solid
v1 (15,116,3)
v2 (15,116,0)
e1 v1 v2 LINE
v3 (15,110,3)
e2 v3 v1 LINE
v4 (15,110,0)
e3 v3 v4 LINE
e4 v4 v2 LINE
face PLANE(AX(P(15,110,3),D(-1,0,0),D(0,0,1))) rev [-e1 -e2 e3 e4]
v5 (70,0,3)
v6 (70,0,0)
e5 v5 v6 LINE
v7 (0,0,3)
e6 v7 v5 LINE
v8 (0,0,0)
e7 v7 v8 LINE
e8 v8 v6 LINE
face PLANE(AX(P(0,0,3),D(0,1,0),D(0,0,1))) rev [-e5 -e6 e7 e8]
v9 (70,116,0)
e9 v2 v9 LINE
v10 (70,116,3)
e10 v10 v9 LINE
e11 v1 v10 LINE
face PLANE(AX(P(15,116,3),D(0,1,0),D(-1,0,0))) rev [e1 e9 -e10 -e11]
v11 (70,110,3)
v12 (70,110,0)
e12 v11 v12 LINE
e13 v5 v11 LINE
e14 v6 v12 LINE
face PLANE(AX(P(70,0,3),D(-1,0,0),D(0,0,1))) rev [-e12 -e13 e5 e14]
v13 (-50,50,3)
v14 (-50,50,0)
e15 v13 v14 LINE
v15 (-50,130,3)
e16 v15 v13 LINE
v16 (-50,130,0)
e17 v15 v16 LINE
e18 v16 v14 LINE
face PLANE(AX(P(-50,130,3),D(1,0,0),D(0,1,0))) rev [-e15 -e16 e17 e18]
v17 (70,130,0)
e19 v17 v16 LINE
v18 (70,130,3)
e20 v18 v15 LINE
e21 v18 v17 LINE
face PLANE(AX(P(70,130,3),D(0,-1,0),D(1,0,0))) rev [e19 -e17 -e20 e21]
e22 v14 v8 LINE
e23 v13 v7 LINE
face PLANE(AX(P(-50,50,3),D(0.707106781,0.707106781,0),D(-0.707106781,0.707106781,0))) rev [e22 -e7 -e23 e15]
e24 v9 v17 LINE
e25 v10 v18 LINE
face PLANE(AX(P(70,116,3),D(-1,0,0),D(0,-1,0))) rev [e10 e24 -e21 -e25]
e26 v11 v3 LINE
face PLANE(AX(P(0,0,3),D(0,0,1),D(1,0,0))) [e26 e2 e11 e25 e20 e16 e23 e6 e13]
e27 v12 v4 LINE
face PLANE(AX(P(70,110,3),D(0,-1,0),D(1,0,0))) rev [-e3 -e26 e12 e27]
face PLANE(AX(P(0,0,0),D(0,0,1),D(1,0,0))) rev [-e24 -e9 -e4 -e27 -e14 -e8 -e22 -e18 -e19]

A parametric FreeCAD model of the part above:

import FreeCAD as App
import Part
import Sketcher

V = App.Vector

doc = App.newDocument("Part")
params = doc.addObject("Spreadsheet::Sheet", "Params")
for row, (alias, value) in enumerate([
    ("sketch1_width", "70 mm"),
    ("sketch1_width2", "55 mm"),
    ("sketch1_width3", "120 mm"),
    ("sketch1_height", "110 mm"),
    ("sketch1_height2", "6 mm"),
    ("pad1_length", "3 mm"),
], start=1):
    params.set(f"A{row}", alias)
    params.set(f"B{row}", "=" + value)
    params.setAlias(f"B{row}", alias)

body = doc.addObject("PartDesign::Body", "Body")

# Sketch on XY plane
sketch1 = body.newObject("Sketcher::SketchObject", "Sketch")
sketch1.AttachmentSupport = (doc.getObject("XY_Plane"), [""])
sketch1.MapMode = "FlatFace"
sketch1.addGeometry(Part.LineSegment(V(0, 0, 0), V(70, 0, 0)), False)
sketch1.addGeometry(Part.LineSegment(V(70, 0, 0), V(70, 110, 0)), False)
sketch1.addGeometry(Part.LineSegment(V(70, 110, 0), V(15, 110, 0)), False)
sketch1.addGeometry(Part.LineSegment(V(15, 110, 0), V(15, 116, 0)), False)
sketch1.addGeometry(Part.LineSegment(V(15, 116, 0), V(70, 116, 0)), False)
sketch1.addGeometry(Part.LineSegment(V(70, 116, 0), V(70, 130, 0)), False)
sketch1.addGeometry(Part.LineSegment(V(70, 130, 0), V(-50, 130, 0)), False)
sketch1.addGeometry(Part.LineSegment(V(-50, 130, 0), V(-50, 50, 0)), False)
sketch1.addGeometry(Part.LineSegment(V(-50, 50, 0), V(0, 0, 0)), False)
sketch1.addConstraint(Sketcher.Constraint("Coincident", 0, 2, 1, 1))
sketch1.addConstraint(Sketcher.Constraint("Coincident", 1, 2, 2, 1))
sketch1.addConstraint(Sketcher.Constraint("Coincident", 2, 2, 3, 1))
sketch1.addConstraint(Sketcher.Constraint("Coincident", 3, 2, 4, 1))
sketch1.addConstraint(Sketcher.Constraint("Coincident", 4, 2, 5, 1))
sketch1.addConstraint(Sketcher.Constraint("Coincident", 5, 2, 6, 1))
sketch1.addConstraint(Sketcher.Constraint("Coincident", 6, 2, 7, 1))
sketch1.addConstraint(Sketcher.Constraint("Coincident", 7, 2, 8, 1))
sketch1.addConstraint(Sketcher.Constraint("Coincident", 8, 2, 0, 1))
sketch1.addConstraint(Sketcher.Constraint("Horizontal", 0))
sketch1.addConstraint(Sketcher.Constraint("Vertical", 1))
sketch1.addConstraint(Sketcher.Constraint("Horizontal", 2))
sketch1.addConstraint(Sketcher.Constraint("Vertical", 3))
sketch1.addConstraint(Sketcher.Constraint("Horizontal", 4))
sketch1.addConstraint(Sketcher.Constraint("Vertical", 5))
sketch1.addConstraint(Sketcher.Constraint("Horizontal", 6))
sketch1.addConstraint(Sketcher.Constraint("Vertical", 7))
sketch1.addConstraint(Sketcher.Constraint("Coincident", 8, 2, -1, 1))
sketch1.addConstraint(Sketcher.Constraint("Vertical", 1, 2, 4, 2))
sketch1.addConstraint(Sketcher.Constraint("DistanceX", 0, 1, 0, 2, 70.0))
sketch1.addConstraint(Sketcher.Constraint("DistanceX", 2, 2, 2, 1, 55.0))
sketch1.addConstraint(Sketcher.Constraint("DistanceX", 6, 2, 6, 1, 120.0))
sketch1.addConstraint(Sketcher.Constraint("DistanceY", 1, 1, 1, 2, 110.0))
sketch1.addConstraint(Sketcher.Constraint("DistanceY", 3, 1, 3, 2, 6.0))
sketch1.addConstraint(Sketcher.Constraint("DistanceY", 5, 1, 5, 2, 14.0))
sketch1.addConstraint(Sketcher.Constraint("DistanceY", 7, 2, 7, 1, 80.0))
sketch1.setExpression("Constraints[19]", "Params.sketch1_width")
sketch1.setExpression("Constraints[20]", "Params.sketch1_width2")
sketch1.setExpression("Constraints[21]", "Params.sketch1_width3")
sketch1.setExpression("Constraints[22]", "Params.sketch1_height")
sketch1.setExpression("Constraints[23]", "Params.sketch1_height2")
pad1 = body.newObject("PartDesign::Pad", "Pad")
pad1.Profile = sketch1
pad1.setExpression("Length", "Params.pad1_length")

doc.recompute()
